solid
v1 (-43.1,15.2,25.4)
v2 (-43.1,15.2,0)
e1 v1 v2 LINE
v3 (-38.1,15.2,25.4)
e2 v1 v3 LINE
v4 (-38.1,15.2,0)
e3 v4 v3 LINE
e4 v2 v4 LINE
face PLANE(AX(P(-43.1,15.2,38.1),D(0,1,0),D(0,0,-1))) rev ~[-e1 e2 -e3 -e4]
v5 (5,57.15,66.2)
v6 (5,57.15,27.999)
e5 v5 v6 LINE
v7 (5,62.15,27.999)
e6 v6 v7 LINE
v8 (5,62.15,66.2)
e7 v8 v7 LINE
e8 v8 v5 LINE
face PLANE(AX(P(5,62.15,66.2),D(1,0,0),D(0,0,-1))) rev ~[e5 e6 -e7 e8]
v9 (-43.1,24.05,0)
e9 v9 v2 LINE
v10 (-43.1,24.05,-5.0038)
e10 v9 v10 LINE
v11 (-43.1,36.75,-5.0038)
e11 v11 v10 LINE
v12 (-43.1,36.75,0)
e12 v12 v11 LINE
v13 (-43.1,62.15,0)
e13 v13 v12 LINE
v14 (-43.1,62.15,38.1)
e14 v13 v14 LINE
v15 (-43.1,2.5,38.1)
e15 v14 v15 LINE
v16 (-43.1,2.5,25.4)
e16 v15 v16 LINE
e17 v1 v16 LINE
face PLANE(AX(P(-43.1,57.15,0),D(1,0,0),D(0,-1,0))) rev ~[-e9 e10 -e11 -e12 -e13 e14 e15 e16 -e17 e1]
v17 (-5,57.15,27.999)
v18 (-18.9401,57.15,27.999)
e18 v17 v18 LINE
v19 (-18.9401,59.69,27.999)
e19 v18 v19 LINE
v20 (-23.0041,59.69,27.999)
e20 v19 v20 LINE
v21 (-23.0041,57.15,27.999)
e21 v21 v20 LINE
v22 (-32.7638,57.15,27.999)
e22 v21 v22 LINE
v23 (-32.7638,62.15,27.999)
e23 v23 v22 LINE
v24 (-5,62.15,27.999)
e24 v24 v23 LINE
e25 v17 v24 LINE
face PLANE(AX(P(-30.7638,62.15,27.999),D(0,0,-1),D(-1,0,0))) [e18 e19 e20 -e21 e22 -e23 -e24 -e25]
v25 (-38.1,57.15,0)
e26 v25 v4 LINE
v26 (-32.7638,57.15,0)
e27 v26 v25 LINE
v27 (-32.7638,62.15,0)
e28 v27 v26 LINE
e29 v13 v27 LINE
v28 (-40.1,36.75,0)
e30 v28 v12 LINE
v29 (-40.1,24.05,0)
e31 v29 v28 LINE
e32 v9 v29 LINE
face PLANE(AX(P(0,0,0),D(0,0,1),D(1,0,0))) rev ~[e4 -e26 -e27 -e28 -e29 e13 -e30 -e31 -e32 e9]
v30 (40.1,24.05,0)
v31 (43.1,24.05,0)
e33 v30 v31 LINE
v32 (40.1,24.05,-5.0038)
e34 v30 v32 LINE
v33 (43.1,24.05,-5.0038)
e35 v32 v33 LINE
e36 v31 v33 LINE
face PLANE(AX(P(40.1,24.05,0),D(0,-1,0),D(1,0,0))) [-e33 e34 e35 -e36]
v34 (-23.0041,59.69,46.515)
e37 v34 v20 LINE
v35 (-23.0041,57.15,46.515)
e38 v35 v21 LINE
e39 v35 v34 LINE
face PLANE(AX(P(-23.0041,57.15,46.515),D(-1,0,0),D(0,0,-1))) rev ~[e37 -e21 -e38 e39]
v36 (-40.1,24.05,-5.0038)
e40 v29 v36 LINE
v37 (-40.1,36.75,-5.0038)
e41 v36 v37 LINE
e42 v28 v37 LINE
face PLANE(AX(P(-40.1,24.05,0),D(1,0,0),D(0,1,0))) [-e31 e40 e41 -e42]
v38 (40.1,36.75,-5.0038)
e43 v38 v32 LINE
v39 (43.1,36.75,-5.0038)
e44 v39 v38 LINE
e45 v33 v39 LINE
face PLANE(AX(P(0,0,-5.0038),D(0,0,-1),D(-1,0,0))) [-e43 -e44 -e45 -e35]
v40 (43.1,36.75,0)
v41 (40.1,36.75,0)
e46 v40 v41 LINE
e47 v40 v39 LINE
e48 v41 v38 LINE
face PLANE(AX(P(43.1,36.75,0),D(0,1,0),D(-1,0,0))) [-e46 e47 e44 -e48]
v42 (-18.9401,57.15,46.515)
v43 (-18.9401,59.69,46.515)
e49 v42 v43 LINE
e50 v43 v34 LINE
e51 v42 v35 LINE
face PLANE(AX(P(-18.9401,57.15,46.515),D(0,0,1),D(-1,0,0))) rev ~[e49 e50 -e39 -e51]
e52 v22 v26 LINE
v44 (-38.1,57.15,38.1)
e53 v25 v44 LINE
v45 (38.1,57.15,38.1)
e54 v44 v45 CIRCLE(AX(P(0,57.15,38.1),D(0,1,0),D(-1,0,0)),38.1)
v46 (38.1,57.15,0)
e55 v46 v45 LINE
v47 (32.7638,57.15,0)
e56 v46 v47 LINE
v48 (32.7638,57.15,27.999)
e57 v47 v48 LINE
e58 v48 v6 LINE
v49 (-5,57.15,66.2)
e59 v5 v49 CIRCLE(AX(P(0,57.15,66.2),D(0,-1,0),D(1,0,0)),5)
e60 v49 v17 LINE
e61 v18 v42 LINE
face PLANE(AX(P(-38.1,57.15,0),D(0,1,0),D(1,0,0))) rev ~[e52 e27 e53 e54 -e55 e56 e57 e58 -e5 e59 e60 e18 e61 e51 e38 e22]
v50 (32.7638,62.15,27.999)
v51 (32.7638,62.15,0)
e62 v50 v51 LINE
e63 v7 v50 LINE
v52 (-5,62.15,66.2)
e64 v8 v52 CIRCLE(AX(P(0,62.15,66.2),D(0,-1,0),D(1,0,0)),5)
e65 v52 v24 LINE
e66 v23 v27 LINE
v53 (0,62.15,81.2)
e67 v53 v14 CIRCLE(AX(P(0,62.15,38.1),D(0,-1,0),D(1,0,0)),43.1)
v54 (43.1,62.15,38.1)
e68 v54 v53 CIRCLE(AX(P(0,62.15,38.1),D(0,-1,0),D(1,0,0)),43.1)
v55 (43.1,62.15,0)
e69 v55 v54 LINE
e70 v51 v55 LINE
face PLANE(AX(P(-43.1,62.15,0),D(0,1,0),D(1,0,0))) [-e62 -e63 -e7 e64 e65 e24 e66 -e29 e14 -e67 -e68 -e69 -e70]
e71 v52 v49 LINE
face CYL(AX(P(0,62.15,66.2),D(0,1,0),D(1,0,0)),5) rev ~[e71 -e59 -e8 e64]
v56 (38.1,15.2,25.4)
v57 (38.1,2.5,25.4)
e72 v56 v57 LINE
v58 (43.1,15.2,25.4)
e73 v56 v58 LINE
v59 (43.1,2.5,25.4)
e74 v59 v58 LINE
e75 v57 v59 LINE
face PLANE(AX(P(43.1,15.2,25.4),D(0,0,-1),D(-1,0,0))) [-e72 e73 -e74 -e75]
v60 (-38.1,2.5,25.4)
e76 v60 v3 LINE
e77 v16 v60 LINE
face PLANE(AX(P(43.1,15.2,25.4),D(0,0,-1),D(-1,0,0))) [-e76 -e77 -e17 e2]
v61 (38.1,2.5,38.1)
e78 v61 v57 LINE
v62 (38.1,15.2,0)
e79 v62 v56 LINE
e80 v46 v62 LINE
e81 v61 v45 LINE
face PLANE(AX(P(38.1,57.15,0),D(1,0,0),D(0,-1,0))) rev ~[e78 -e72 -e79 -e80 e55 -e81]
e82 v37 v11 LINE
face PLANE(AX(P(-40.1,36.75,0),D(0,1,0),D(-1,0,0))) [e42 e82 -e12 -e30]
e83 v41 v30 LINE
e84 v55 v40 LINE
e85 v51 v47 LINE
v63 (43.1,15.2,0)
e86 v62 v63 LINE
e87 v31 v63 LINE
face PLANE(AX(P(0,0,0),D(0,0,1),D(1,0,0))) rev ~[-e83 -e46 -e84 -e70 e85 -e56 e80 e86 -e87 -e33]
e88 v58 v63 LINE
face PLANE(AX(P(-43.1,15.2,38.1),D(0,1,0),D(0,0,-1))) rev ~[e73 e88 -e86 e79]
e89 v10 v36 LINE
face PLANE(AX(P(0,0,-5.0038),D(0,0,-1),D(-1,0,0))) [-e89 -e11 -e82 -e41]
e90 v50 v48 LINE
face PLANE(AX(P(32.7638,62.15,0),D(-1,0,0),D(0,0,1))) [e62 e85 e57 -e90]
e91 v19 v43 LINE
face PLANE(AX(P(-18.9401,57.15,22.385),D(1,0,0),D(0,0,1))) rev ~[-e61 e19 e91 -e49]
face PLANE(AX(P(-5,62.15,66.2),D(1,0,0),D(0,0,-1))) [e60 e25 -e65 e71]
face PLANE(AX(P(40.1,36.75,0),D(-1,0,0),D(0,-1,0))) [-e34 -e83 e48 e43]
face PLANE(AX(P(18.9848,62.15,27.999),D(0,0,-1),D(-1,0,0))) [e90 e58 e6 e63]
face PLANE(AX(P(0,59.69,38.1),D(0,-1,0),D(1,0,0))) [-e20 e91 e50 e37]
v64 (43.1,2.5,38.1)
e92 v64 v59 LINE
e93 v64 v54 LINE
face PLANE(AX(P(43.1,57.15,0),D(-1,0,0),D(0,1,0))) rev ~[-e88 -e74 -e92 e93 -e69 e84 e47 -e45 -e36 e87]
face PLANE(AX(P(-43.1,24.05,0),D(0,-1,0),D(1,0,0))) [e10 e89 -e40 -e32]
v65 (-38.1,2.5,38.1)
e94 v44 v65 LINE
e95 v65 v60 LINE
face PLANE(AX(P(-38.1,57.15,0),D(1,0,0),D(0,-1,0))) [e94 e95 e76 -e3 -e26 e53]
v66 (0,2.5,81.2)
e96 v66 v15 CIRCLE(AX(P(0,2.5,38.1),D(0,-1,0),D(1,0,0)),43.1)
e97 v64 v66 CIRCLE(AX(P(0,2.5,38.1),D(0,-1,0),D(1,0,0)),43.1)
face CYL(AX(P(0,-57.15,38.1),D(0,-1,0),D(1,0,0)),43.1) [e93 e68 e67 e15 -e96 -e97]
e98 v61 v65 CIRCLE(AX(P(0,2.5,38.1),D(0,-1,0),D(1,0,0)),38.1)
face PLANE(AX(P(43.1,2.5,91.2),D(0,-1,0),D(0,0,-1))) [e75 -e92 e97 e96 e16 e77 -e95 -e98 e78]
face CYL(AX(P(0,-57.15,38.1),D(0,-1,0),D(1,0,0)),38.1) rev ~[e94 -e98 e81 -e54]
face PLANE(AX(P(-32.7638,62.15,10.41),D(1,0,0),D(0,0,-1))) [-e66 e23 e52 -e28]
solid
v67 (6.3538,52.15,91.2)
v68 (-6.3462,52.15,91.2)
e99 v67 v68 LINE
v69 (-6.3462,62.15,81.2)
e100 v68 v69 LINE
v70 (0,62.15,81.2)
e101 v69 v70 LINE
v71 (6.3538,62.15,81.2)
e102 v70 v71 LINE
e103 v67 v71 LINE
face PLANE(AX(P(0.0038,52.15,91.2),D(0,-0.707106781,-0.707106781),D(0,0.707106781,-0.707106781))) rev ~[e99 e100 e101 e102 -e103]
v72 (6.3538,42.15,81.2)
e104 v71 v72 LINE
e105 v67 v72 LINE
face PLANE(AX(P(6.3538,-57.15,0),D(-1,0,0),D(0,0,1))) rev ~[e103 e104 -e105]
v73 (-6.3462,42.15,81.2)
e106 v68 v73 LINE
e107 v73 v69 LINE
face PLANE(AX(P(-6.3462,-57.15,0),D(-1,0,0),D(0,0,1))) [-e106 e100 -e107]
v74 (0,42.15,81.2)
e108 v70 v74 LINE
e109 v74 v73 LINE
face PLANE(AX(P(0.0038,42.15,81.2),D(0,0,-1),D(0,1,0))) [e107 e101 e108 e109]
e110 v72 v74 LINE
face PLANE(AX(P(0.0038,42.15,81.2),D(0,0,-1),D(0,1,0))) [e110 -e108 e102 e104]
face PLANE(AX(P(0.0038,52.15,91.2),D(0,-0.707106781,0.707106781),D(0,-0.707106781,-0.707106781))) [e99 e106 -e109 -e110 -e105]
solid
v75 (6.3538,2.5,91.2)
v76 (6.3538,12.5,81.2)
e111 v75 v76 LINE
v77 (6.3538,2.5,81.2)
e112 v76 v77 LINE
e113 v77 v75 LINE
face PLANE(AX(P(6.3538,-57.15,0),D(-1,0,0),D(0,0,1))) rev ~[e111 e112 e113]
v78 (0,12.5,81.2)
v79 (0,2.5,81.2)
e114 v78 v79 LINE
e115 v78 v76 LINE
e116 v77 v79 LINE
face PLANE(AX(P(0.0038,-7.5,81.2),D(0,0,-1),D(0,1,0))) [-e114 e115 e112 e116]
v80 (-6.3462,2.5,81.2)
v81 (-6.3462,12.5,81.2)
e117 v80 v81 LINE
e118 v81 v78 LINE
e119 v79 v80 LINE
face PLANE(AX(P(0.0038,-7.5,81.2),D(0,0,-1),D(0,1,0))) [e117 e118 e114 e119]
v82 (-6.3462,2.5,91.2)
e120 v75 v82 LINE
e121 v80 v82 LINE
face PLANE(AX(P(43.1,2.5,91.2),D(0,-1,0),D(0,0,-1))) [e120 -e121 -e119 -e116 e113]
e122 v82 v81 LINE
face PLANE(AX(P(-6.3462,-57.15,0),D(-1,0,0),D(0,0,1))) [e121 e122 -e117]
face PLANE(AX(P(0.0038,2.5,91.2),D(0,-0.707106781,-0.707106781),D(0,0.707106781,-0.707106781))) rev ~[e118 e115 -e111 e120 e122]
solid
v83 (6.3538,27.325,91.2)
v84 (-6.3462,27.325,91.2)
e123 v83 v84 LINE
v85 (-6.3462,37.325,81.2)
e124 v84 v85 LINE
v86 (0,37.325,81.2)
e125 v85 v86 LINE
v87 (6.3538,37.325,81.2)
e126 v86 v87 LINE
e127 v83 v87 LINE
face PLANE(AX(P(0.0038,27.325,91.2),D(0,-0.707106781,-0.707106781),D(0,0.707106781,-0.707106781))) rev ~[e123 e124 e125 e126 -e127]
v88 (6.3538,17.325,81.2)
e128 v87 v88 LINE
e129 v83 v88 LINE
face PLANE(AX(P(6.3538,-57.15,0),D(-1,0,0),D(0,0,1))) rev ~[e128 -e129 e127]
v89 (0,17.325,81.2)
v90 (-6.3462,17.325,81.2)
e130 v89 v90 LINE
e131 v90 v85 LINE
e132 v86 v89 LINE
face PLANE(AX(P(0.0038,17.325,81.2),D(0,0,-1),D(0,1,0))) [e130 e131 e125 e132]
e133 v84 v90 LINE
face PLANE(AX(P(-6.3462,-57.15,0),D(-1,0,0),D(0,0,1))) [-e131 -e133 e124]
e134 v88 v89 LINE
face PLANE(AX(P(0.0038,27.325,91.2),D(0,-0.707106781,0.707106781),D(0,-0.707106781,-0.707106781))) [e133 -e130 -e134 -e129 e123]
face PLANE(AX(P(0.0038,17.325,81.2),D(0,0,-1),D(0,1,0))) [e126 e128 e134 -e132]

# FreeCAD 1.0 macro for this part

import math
import FreeCAD as App
import Part
import Sketcher
from FreeCAD import Vector
Q = App.Units.Quantity


def add_polygon(sketch, points):
    """Adds a closed chain of lines whose ends are joined by coincident constraints."""
    first, n = sketch.GeometryCount, len(points)
    for a, b in zip(points, points[1:] + points[:1]):
        sketch.addGeometry(Part.LineSegment(App.Vector(*a, 0), App.Vector(*b, 0)), False)
    for i in range(n):
        sketch.addConstraint(Sketcher.Constraint("Coincident", first + i, 2, first + (i + 1) % n, 1))

doc = App.newDocument("Part")
params = doc.addObject("Spreadsheet::Sheet", "Params")
for row, (alias, value) in enumerate([
    ("sketch1_width", "3 in"),
    ("sketch1_height", "4.5 in"),
    ("pad1_length", "1.5 in"),
    ("sketch2_radius", "1.5 in"),
    ("pad2_length", "119.3 mm"),
    ("sketch3_radius", "1.5 in"),
    ("pad3_length", "5 mm"),
    ("pocket1_length", "5 mm"),
    ("pad4_length", "0.5 in"),
    ("sketch6_height", "0.5 in"),
    ("pad5_length", "0.197 in"),
    ("pocket2_length", "100 in"),
    ("sketch8_width", "0.5 in"),
    ("sketch8_height", "1.5 in"),
    ("pocket3_length", "56 in"),
    ("pocket4_length", "56 in"),
    ("pocket5_length", "1 in"),
    ("pocket6_length", "1 in"),
    ("sketch12_width", "0.16 in"),
    ("sketch12_height", "0.95 in"),
    ("pocket7_length", "0.1 in"),
    ("sketch13_height", "0.5 in"),
    ("pad6_length", "0.5 in"),
    ("pocket8_length", "0.5 in"),
], start=1):
    params.set(f"A{row}", alias)
    params.set(f"B{row}", "=" + value)
    params.setAlias(f"B{row}", alias)

body = doc.addObject("PartDesign::Body", "Body")
body.AllowCompound = True

# Sketch on XY plane
sketch1 = doc.addObject("Sketcher::SketchObject", "Sketch")
body.addObject(sketch1)
sketch1.AttachmentSupport = (doc.XY_Plane, [""])
sketch1.MapMode = "FlatFace"
add_polygon(sketch1, [(-43, -57), (-38, -57), (-38, 57), (38, 57), (38, -57), (43, -57), (43, 62), (-43, 62)])  # lines 0-7
sketch1.addConstraint(Sketcher.Constraint("Horizontal", 0))
sketch1.addConstraint(Sketcher.Constraint("Vertical", 1))
sketch1.addConstraint(Sketcher.Constraint("Horizontal", 2))
sketch1.addConstraint(Sketcher.Constraint("Vertical", 3))
sketch1.addConstraint(Sketcher.Constraint("Horizontal", 4))
sketch1.addConstraint(Sketcher.Constraint("Vertical", 5))
sketch1.addConstraint(Sketcher.Constraint("Horizontal", 6))
sketch1.addConstraint(Sketcher.Constraint("Vertical", 7))
sketch1.addConstraint(Sketcher.Constraint("Symmetric", 0, 2, 2, 2, -1, 1))
sketch1.addConstraint(Sketcher.Constraint("Symmetric", 4, 2, 7, 2, -2))
sketch1.addConstraint(Sketcher.Constraint("DistanceX", 2, 1, 2, 2, Q("3 in")))
sketch1.addConstraint(Sketcher.Constraint("DistanceY", 1, 1, 1, 2, Q("4.5 in")))
sketch1.addConstraint(Sketcher.Constraint("DistanceX", 0, 1, 0, 2, 5.0))
sketch1.addConstraint(Sketcher.Constraint("DistanceY", 2, 2, 5, 2, 5.0))
sketch1.setExpression("Constraints[18]", "Params.sketch1_width")
sketch1.setExpression("Constraints[19]", "Params.sketch1_height")
pad1 = doc.addObject("PartDesign::Pad", "Pad")
body.addObject(pad1)
pad1.Profile = sketch1
pad1.setExpression("Length", "Params.pad1_length")

# Sketch on XZ plane
sketch2 = doc.addObject("Sketcher::SketchObject", "Sketch001")
body.addObject(sketch2)
sketch2.AttachmentSupport = (doc.XZ_Plane, [""])
sketch2.MapMode = "FlatFace"
sketch2.AttachmentOffset = App.Placement(Vector(0, 0, 2.25 * 25.4), App.Rotation())
sketch2.addGeometry(Part.LineSegment(Vector(-43, 38, 0), Vector(-38, 38, 0)), False)
sketch2.addGeometry(Part.ArcOfCircle(Part.Circle(Vector(0, 38, 0), Vector(0, 0, 1), 38), math.radians(0), math.radians(180)), False)
sketch2.addGeometry(Part.LineSegment(Vector(38, 38, 0), Vector(43, 38, 0)), False)
sketch2.addGeometry(Part.ArcOfCircle(Part.Circle(Vector(0, 38, 0), Vector(0, 0, 1), 43), math.radians(0), math.radians(180)), False)
sketch2.addConstraint(Sketcher.Constraint("Coincident", 0, 2, 1, 2))
sketch2.addConstraint(Sketcher.Constraint("Coincident", 1, 1, 2, 1))
sketch2.addConstraint(Sketcher.Constraint("Coincident", 2, 2, 3, 1))
sketch2.addConstraint(Sketcher.Constraint("Coincident", 3, 2, 0, 1))
sketch2.addConstraint(Sketcher.Constraint("Horizontal", 0))
sketch2.addConstraint(Sketcher.Constraint("Horizontal", 2))
sketch2.addConstraint(Sketcher.Constraint("Coincident", 3, 3, 1, 3))
sketch2.addConstraint(Sketcher.Constraint("Symmetric", 0, 2, 1, 1, -2))
sketch2.addConstraint(Sketcher.Constraint("Horizontal", 3, 3, 0, 2))
sketch2.addConstraint(Sketcher.Constraint("Radius", 1, Q("1.5 in")))
sketch2.addConstraint(Sketcher.Constraint("DistanceY", -1, 1, 1, 3, Q("1.5 in")))
sketch2.addConstraint(Sketcher.Constraint("Radius", 3, 43.1))
sketch2.setExpression("Constraints[9]", "Params.sketch2_radius")
pad2 = doc.addObject("PartDesign::Pad", "Pad001")
body.addObject(pad2)
pad2.Profile = sketch2
pad2.setExpression("Length", "Params.pad2_length")
pad2.Reversed = True

# Sketch on XZ plane
sketch3 = doc.addObject("Sketcher::SketchObject", "Sketch002")
body.addObject(sketch3)
sketch3.AttachmentSupport = (doc.XZ_Plane, [""])
sketch3.MapMode = "FlatFace"
sketch3.AttachmentOffset = App.Placement(Vector(0, 0, -62.15), App.Rotation())
sketch3.addGeometry(Part.LineSegment(Vector(38, 38, 0), Vector(-38, 38, 0)), False)
sketch3.addGeometry(Part.ArcOfCircle(Part.Circle(Vector(0, 38, 0), Vector(0, 0, 1), 38), math.radians(0), math.radians(180)), False)
sketch3.addConstraint(Sketcher.Constraint("Coincident", 0, 1, 1, 1))
sketch3.addConstraint(Sketcher.Constraint("Coincident", 1, 2, 0, 2))
sketch3.addConstraint(Sketcher.Constraint("Horizontal", 0))
sketch3.addConstraint(Sketcher.Constraint("PointOnObject", 1, 3, -2))
sketch3.addConstraint(Sketcher.Constraint("Horizontal", 1, 3, 0, 1))
sketch3.addConstraint(Sketcher.Constraint("Radius", 1, Q("1.5 in")))
sketch3.addConstraint(Sketcher.Constraint("DistanceY", -1, 1, 1, 3, Q("1.5 in")))
sketch3.setExpression("Constraints[5]", "Params.sketch3_radius")
pad3 = doc.addObject("PartDesign::Pad", "Pad002")
body.addObject(pad3)
pad3.Profile = sketch3
pad3.setExpression("Length", "Params.pad3_length")

# Sketch on XZ plane
sketch4 = doc.addObject("Sketcher::SketchObject", "Sketch003")
body.addObject(sketch4)
sketch4.AttachmentSupport = (doc.XZ_Plane, [""])
sketch4.MapMode = "FlatFace"
sketch4.AttachmentOffset = App.Placement(Vector(0, 0, -62.15), App.Rotation())
sketch4.addGeometry(Part.Circle(Vector(0, 23.4, 0), Vector(0, 0, 1), 3.3), False)
sketch4.addConstraint(Sketcher.Constraint("PointOnObject", 0, 3, -2))
sketch4.addConstraint(Sketcher.Constraint("Diameter", 0, 6.55))
sketch4.addConstraint(Sketcher.Constraint("DistanceY", -1, 1, 0, 3, 23.375))
pocket1 = doc.addObject("PartDesign::Pocket", "Pocket")
body.addObject(pocket1)
pocket1.Profile = sketch4
pocket1.setExpression("Length", "Params.pocket1_length")
pocket1.Reversed = True

# Sketch on YZ plane
sketch5 = doc.addObject("Sketcher::SketchObject", "Sketch004")
body.addObject(sketch5)
sketch5.AttachmentSupport = (doc.YZ_Plane, [""])
sketch5.MapMode = "FlatFace"
sketch5.AttachmentOffset = App.Placement(Vector(0, 0, 0.0038), App.Rotation())
add_polygon(sketch5, [(42, 81), (52, 91), (62, 81)])  # lines 0-2
add_polygon(sketch5, [(17, 81), (27, 91), (37, 81)])  # lines 3-5
add_polygon(sketch5, [(-8, 81), (2, 91), (12, 81)])  # lines 6-8
add_polygon(sketch5, [(-32, 81), (-22, 91), (-12, 81)])  # lines 9-11
add_polygon(sketch5, [(-57, 81), (-47, 91), (-37, 81)])  # lines 12-14
sketch5.addConstraint(Sketcher.Constraint("Horizontal", 2))
sketch5.addConstraint(Sketcher.Constraint("Horizontal", 5))
sketch5.addConstraint(Sketcher.Constraint("Horizontal", 8))
sketch5.addConstraint(Sketcher.Constraint("Horizontal", 11))
sketch5.addConstraint(Sketcher.Constraint("Horizontal", 14))
sketch5.addConstraint(Sketcher.Constraint("Perpendicular", 0, 1))
sketch5.addConstraint(Sketcher.Constraint("Perpendicular", 1, 3))
sketch5.addConstraint(Sketcher.Constraint("Perpendicular", 3, 4))
sketch5.addConstraint(Sketcher.Constraint("Perpendicular", 4, 6))
sketch5.addConstraint(Sketcher.Constraint("Perpendicular", 6, 7))
sketch5.addConstraint(Sketcher.Constraint("Perpendicular", 7, 9))
sketch5.addConstraint(Sketcher.Constraint("Perpendicular", 9, 10))
sketch5.addConstraint(Sketcher.Constraint("Perpendicular", 10, 12))
sketch5.addConstraint(Sketcher.Constraint("Perpendicular", 12, 13))
sketch5.addConstraint(Sketcher.Constraint("Horizontal", 0, 2, 3, 2))
sketch5.addConstraint(Sketcher.Constraint("Horizontal", 2, 2, 4, 2))
sketch5.addConstraint(Sketcher.Constraint("Horizontal", 3, 2, 6, 2))
sketch5.addConstraint(Sketcher.Constraint("Horizontal", 5, 2, 7, 2))
sketch5.addConstraint(Sketcher.Constraint("Horizontal", 6, 2, 9, 2))
sketch5.addConstraint(Sketcher.Constraint("Horizontal", 8, 2, 10, 2))
sketch5.addConstraint(Sketcher.Constraint("Horizontal", 9, 2, 12, 2))
sketch5.addConstraint(Sketcher.Constraint("Horizontal", 11, 2, 13, 2))
sketch5.addConstraint(Sketcher.Constraint("Equal", 0, 1))
sketch5.addConstraint(Sketcher.Constraint("DistanceX", 2, 2, 2, 1, Q("0.7874 in")))
sketch5.addConstraint(Sketcher.Constraint("DistanceX", 14, 2, -1, 1, Q("2.25 in")))
sketch5.addConstraint(Sketcher.Constraint("DistanceX", 3, 2, 0, 2, 24.825))
sketch5.addConstraint(Sketcher.Constraint("DistanceX", 6, 2, 3, 2, 24.825))
sketch5.addConstraint(Sketcher.Constraint("DistanceX", 9, 2, 6, 2, 24.825))
sketch5.addConstraint(Sketcher.Constraint("DistanceX", 12, 2, 9, 2, 24.825))
sketch5.addConstraint(Sketcher.Constraint("DistanceY", -1, 1, 0, 2, 91.2))
pad4 = doc.addObject("PartDesign::Pad", "Pad003")
body.addObject(pad4)
pad4.Profile = sketch5
pad4.setExpression("Length", "Params.pad4_length")
pad4.Midplane = True

# Sketch on XY plane
sketch6 = doc.addObject("Sketcher::SketchObject", "Sketch005")
body.addObject(sketch6)
sketch6.AttachmentSupport = (doc.XY_Plane, [""])
sketch6.MapMode = "FlatFace"
add_polygon(sketch6, [(-43.1, -31.8), (-43.1, -19.1), (-40.1, -19.1), (-40.1, -31.8)])  # lines 0-3
add_polygon(sketch6, [(-40.1, 36.8), (-40.1, 24.1), (-43.1, 24.1), (-43.1, 36.8)])  # lines 4-7
add_polygon(sketch6, [(40.1, -19.1), (43.1, -19.1), (43.1, -31.8), (40.1, -31.8)])  # lines 8-11
add_polygon(sketch6, [(40.1, 24.1), (40.1, 36.8), (43.1, 36.8), (43.1, 24.1)])  # lines 12-15
sketch6.addConstraint(Sketcher.Constraint("Vertical", 0))
sketch6.addConstraint(Sketcher.Constraint("Horizontal", 1))
sketch6.addConstraint(Sketcher.Constraint("Vertical", 2))
sketch6.addConstraint(Sketcher.Constraint("Horizontal", 3))
sketch6.addConstraint(Sketcher.Constraint("Vertical", 4))
sketch6.addConstraint(Sketcher.Constraint("Horizontal", 5))
sketch6.addConstraint(Sketcher.Constraint("Vertical", 6))
sketch6.addConstraint(Sketcher.Constraint("Horizontal", 7))
sketch6.addConstraint(Sketcher.Constraint("Horizontal", 8))
sketch6.addConstraint(Sketcher.Constraint("Vertical", 9))
sketch6.addConstraint(Sketcher.Constraint("Horizontal", 10))
sketch6.addConstraint(Sketcher.Constraint("Vertical", 11))
sketch6.addConstraint(Sketcher.Constraint("Vertical", 12))
sketch6.addConstraint(Sketcher.Constraint("Horizontal", 13))
sketch6.addConstraint(Sketcher.Constraint("Vertical", 14))
sketch6.addConstraint(Sketcher.Constraint("Horizontal", 15))
sketch6.addConstraint(Sketcher.Constraint("Symmetric", 0, 2, 8, 2, -2))
sketch6.addConstraint(Sketcher.Constraint("Symmetric", 2, 2, 10, 2, -2))
sketch6.addConstraint(Sketcher.Constraint("Symmetric", 7, 2, 12, 2, -2))
sketch6.addConstraint(Sketcher.Constraint("Symmetric", 5, 2, 14, 2, -2))
sketch6.addConstraint(Sketcher.Constraint("Vertical", 2, 2, 4, 2))
sketch6.addConstraint(Sketcher.Constraint("Vertical", 3, 2, 5, 2))
sketch6.addConstraint(Sketcher.Constraint("Equal", 2, 4))
sketch6.addConstraint(Sketcher.Constraint("DistanceY", 0, 1, 0, 2, Q("0.5 in")))
sketch6.addConstraint(Sketcher.Constraint("DistanceY", 0, 2, -1, 1, Q("0.75 in")))
sketch6.addConstraint(Sketcher.Constraint("DistanceX", 1, 1, 1, 2, Q("0.1181 in")))
sketch6.addConstraint(Sketcher.Constraint("DistanceX", 1, 2, 8, 2, Q("3.2756 in")))
sketch6.addConstraint(Sketcher.Constraint("DistanceY", -1, 1, 4, 2, 24.05))
sketch6.setExpression("Constraints[39]", "Params.sketch6_height")
pad5 = doc.addObject("PartDesign::Pad", "Pad004")
body.addObject(pad5)
pad5.Profile = sketch6
pad5.setExpression("Length", "Params.pad5_length")
pad5.Reversed = True

# Sketch on YZ plane
sketch7 = doc.addObject("Sketcher::SketchObject", "Sketch006")
body.addObject(sketch7)
sketch7.AttachmentSupport = (doc.YZ_Plane, [""])
sketch7.MapMode = "FlatFace"
sketch7.AttachmentOffset = App.Placement(Vector(0, 0, 43.1), App.Rotation())
add_polygon(sketch7, [(2, -41), (2, 91), (-105, 119), (-101, -45)])  # lines 0-3
sketch7.addConstraint(Sketcher.Constraint("Vertical", 0))
sketch7.addConstraint(Sketcher.Constraint("Angle", 2, Q("-88.609 deg")))
sketch7.addConstraint(Sketcher.Constraint("Distance", 3, Q("4.0664 in")))
sketch7.addConstraint(Sketcher.Constraint("DistanceY", 0, 1, 0, 2, 131.949))
sketch7.addConstraint(Sketcher.Constraint("DistanceY", 3, 2, -1, 1, Q("1.6043 in")))
sketch7.addConstraint(Sketcher.Constraint("DistanceX", 2, 2, 0, 2, Q("4.0628 in")))
sketch7.addConstraint(Sketcher.Constraint("Distance", 1, 110.723))
sketch7.addConstraint(Sketcher.Constraint("DistanceX", -1, 1, 0, 2, 2.5))
pocket2 = doc.addObject("PartDesign::Pocket", "Pocket001")
body.addObject(pocket2)
pocket2.Profile = sketch7
pocket2.setExpression("Length", "Params.pocket2_length")

# Sketch on YZ plane
sketch8 = doc.addObject("Sketcher::SketchObject", "Sketch007")
body.addObject(sketch8)
sketch8.AttachmentSupport = (doc.YZ_Plane, [""])
sketch8.MapMode = "FlatFace"
sketch8.AttachmentOffset = App.Placement(Vector(0, 0, -43.1), App.Rotation())
add_polygon(sketch8, [(2, 0), (2, 38), (15, 38), (15, 0)])  # lines 0-3
sketch8.addConstraint(Sketcher.Constraint("Vertical", 0))
sketch8.addConstraint(Sketcher.Constraint("Horizontal", 1))
sketch8.addConstraint(Sketcher.Constraint("Vertical", 2))
sketch8.addConstraint(Sketcher.Constraint("Horizontal", 3))
sketch8.addConstraint(Sketcher.Constraint("PointOnObject", 2, 2, -1))
sketch8.addConstraint(Sketcher.Constraint("DistanceX", 1, 1, 1, 2, Q("0.5 in")))
sketch8.addConstraint(Sketcher.Constraint("DistanceY", 0, 1, 0, 2, Q("1.5 in")))
sketch8.addConstraint(Sketcher.Constraint("DistanceX", -1, 1, 0, 2, 2.5))
sketch8.setExpression("Constraints[9]", "Params.sketch8_width")
sketch8.setExpression("Constraints[10]", "Params.sketch8_height")
pocket3 = doc.addObject("PartDesign::Pocket", "Pocket002")
body.addObject(pocket3)
pocket3.Profile = sketch8
pocket3.setExpression("Length", "Params.pocket3_length")
pocket3.Reversed = True

# Sketch on XZ plane
sketch9 = doc.addObject("Sketcher::SketchObject", "Sketch008")
body.addObject(sketch9)
sketch9.AttachmentSupport = (doc.XZ_Plane, [""])
sketch9.MapMode = "FlatFace"
sketch9.AttachmentOffset = App.Placement(Vector(0, 0, -62.15), App.Rotation())
sketch9.addGeometry(Part.Circle(Vector(0, 66, 0), Vector(0, 0, 1), 5), False)
sketch9.addConstraint(Sketcher.Constraint("PointOnObject", 0, 3, -2))
sketch9.addConstraint(Sketcher.Constraint("Diameter", 0, Q("0.3937 in")))
sketch9.addConstraint(Sketcher.Constraint("DistanceY", -1, 1, 0, 3, Q("2.6063 in")))
pocket4 = doc.addObject("PartDesign::Pocket", "Pocket003")
body.addObject(pocket4)
pocket4.Profile = sketch9
pocket4.setExpression("Length", "Params.pocket4_length")
pocket4.Reversed = True

# Sketch on XZ plane
sketch10 = doc.addObject("Sketcher::SketchObject", "Sketch009")
body.addObject(sketch10)
sketch10.AttachmentSupport = (doc.XZ_Plane, [""])
sketch10.MapMode = "FlatFace"
sketch10.AttachmentOffset = App.Placement(Vector(0, 0, -62.15), App.Rotation())
sketch10.addGeometry(Part.ArcOfCircle(Part.Circle(Vector(0, 66, 0), Vector(0, 0, 1), 5), math.radians(0), math.radians(180)), False)
sketch10.addGeometry(Part.LineSegment(Vector(5, 66, 0), Vector(5, 0, 0)), False)
sketch10.addGeometry(Part.LineSegment(Vector(5, 0, 0), Vector(-5, 0, 0)), False)
sketch10.addGeometry(Part.LineSegment(Vector(-5, 0, 0), Vector(-5, 66, 0)), False)
sketch10.addConstraint(Sketcher.Constraint("Tangent", 0, 1, 1, 1))
sketch10.addConstraint(Sketcher.Constraint("Coincident", 1, 2, 2, 1))
sketch10.addConstraint(Sketcher.Constraint("Coincident", 2, 2, 3, 1))
sketch10.addConstraint(Sketcher.Constraint("Tangent", 3, 2, 0, 2))
sketch10.addConstraint(Sketcher.Constraint("Vertical", 1))
sketch10.addConstraint(Sketcher.Constraint("Horizontal", 2))
sketch10.addConstraint(Sketcher.Constraint("Vertical", 3))
sketch10.addConstraint(Sketcher.Constraint("Symmetric", 1, 2, 2, 2, -1, 1))
sketch10.addConstraint(Sketcher.Constraint("Radius", 0, 5.0))
sketch10.addConstraint(Sketcher.Constraint("DistanceY", 1, 2, 1, 1, Q("2.6063 in")))
pocket5 = doc.addObject("PartDesign::Pocket", "Pocket004")
body.addObject(pocket5)
pocket5.Profile = sketch10
pocket5.setExpression("Length", "Params.pocket5_length")
pocket5.Reversed = True

# Sketch on XZ plane
sketch11 = doc.addObject("Sketcher::SketchObject", "Sketch010")
body.addObject(sketch11)
sketch11.AttachmentSupport = (doc.XZ_Plane, [""])
sketch11.MapMode = "FlatFace"
sketch11.AttachmentOffset = App.Placement(Vector(0, 0, -62.15), App.Rotation())
add_polygon(sketch11, [(-33, 28), (-19, 28), (-19, 10), (-33, 10)])  # lines 0-3
sketch11.addConstraint(Sketcher.Constraint("Horizontal", 0))
sketch11.addConstraint(Sketcher.Constraint("Vertical", 1))
sketch11.addConstraint(Sketcher.Constraint("Horizontal", 2))
sketch11.addConstraint(Sketcher.Constraint("Vertical", 3))
sketch11.addConstraint(Sketcher.Constraint("DistanceX", 0, 1, 0, 2, 13.779))
sketch11.addConstraint(Sketcher.Constraint("DistanceY", 1, 2, 1, 1, 17.589))
sketch11.addConstraint(Sketcher.Constraint("DistanceX", 0, 2, -1, 1, 18.9848))
sketch11.addConstraint(Sketcher.Constraint("DistanceY", -1, 1, 0, 2, 27.999))
pocket6 = doc.addObject("PartDesign::Pocket", "Pocket005")
body.addObject(pocket6)
pocket6.Profile = sketch11
pocket6.setExpression("Length", "Params.pocket6_length")
pocket6.Reversed = True

# Sketch on XZ plane
sketch12 = doc.addObject("Sketcher::SketchObject", "Sketch011")
body.addObject(sketch12)
sketch12.AttachmentSupport = (doc.XZ_Plane, [""])
sketch12.MapMode = "FlatFace"
sketch12.AttachmentOffset = App.Placement(Vector(0, 0, -2.25 * 25.4), App.Rotation())
add_polygon(sketch12, [(-18.9, 22.4), (-18.9, 46.5), (-23, 46.5), (-23, 22.4)])  # lines 0-3
sketch12.addConstraint(Sketcher.Constraint("Vertical", 0))
sketch12.addConstraint(Sketcher.Constraint("Horizontal", 1))
sketch12.addConstraint(Sketcher.Constraint("Vertical", 2))
sketch12.addConstraint(Sketcher.Constraint("Horizontal", 3))
sketch12.addConstraint(Sketcher.Constraint("DistanceX", 1, 2, 1, 1, Q("0.16 in")))
sketch12.addConstraint(Sketcher.Constraint("DistanceY", 0, 1, 0, 2, Q("0.95 in")))
sketch12.addConstraint(Sketcher.Constraint("DistanceY", -1, 1, 0, 2, Q("1.8313 in")))
sketch12.addConstraint(Sketcher.Constraint("DistanceX", 0, 2, -1, 1, 18.94))
sketch12.setExpression("Constraints[8]", "Params.sketch12_width")
sketch12.setExpression("Constraints[9]", "Params.sketch12_height")
pocket7 = doc.addObject("PartDesign::Pocket", "Pocket006")
body.addObject(pocket7)
pocket7.Profile = sketch12
pocket7.setExpression("Length", "Params.pocket7_length")

# Sketch on XY plane
sketch13 = doc.addObject("Sketcher::SketchObject", "Sketch012")
body.addObject(sketch13)
sketch13.AttachmentSupport = (doc.XY_Plane, [""])
sketch13.MapMode = "FlatFace"
sketch13.AttachmentOffset = App.Placement(Vector(0, 0, 1.5 * 25.4), App.Rotation())
add_polygon(sketch13, [(38, 2), (38, 15), (43, 15), (43, 2)])  # lines 0-3
add_polygon(sketch13, [(-38, 15), (-38, 2), (-43, 2), (-43, 15)])  # lines 4-7
sketch13.addConstraint(Sketcher.Constraint("Vertical", 0))
sketch13.addConstraint(Sketcher.Constraint("Horizontal", 1))
sketch13.addConstraint(Sketcher.Constraint("Vertical", 2))
sketch13.addConstraint(Sketcher.Constraint("Horizontal", 3))
sketch13.addConstraint(Sketcher.Constraint("Vertical", 4))
sketch13.addConstraint(Sketcher.Constraint("Horizontal", 5))
sketch13.addConstraint(Sketcher.Constraint("Vertical", 6))
sketch13.addConstraint(Sketcher.Constraint("Horizontal", 7))
sketch13.addConstraint(Sketcher.Constraint("Symmetric", 3, 2, 4, 2, -2))
sketch13.addConstraint(Sketcher.Constraint("Symmetric", 1, 2, 6, 2, -2))
sketch13.addConstraint(Sketcher.Constraint("DistanceY", 0, 1, 0, 2, Q("0.5 in")))
sketch13.addConstraint(Sketcher.Constraint("DistanceX", 4, 2, 3, 2, Q("3 in")))
sketch13.addConstraint(Sketcher.Constraint("DistanceX", 1, 1, 1, 2, 5.0))
sketch13.addConstraint(Sketcher.Constraint("DistanceY", -1, 1, 0, 2, 15.2))
sketch13.setExpression("Constraints[18]", "Params.sketch13_height")
pad6 = doc.addObject("PartDesign::Pad", "Pad005")
body.addObject(pad6)
pad6.Profile = sketch13
pad6.setExpression("Length", "Params.pad6_length")
pad6.Reversed = True

# Sketch on XZ plane
sketch14 = doc.addObject("Sketcher::SketchObject", "Sketch013")
body.addObject(sketch14)
sketch14.AttachmentSupport = (doc.XZ_Plane, [""])
sketch14.MapMode = "FlatFace"
sketch14.AttachmentOffset = App.Placement(Vector(0, 0, -62.15), App.Rotation())
add_polygon(sketch14, [(-33, 0), (-33, 10), (-19, 10), (-19, 28), (33, 28), (33, 0)])  # lines 0-5
sketch14.addConstraint(Sketcher.Constraint("Vertical", 0))
sketch14.addConstraint(Sketcher.Constraint("Horizontal", 1))
sketch14.addConstraint(Sketcher.Constraint("Vertical", 2))
sketch14.addConstraint(Sketcher.Constraint("Horizontal", 3))
sketch14.addConstraint(Sketcher.Constraint("Vertical", 4))
sketch14.addConstraint(Sketcher.Constraint("Horizontal", 5))
sketch14.addConstraint(Sketcher.Constraint("Symmetric", 4, 2, 5, 2, -1, 1))
sketch14.addConstraint(Sketcher.Constraint("DistanceX", 1, 1, 1, 2, 13.779))
sketch14.addConstraint(Sketcher.Constraint("DistanceX", 3, 1, 3, 2, 51.7486))
sketch14.addConstraint(Sketcher.Constraint("DistanceY", 0, 1, 0, 2, 10.41))
sketch14.addConstraint(Sketcher.Constraint("DistanceY", 2, 1, 2, 2, 17.589))
pocket8 = doc.addObject("PartDesign::Pocket", "Pocket007")
body.addObject(pocket8)
pocket8.Profile = sketch14
pocket8.setExpression("Length", "Params.pocket8_length")
pocket8.Reversed = True

doc.recompute()
